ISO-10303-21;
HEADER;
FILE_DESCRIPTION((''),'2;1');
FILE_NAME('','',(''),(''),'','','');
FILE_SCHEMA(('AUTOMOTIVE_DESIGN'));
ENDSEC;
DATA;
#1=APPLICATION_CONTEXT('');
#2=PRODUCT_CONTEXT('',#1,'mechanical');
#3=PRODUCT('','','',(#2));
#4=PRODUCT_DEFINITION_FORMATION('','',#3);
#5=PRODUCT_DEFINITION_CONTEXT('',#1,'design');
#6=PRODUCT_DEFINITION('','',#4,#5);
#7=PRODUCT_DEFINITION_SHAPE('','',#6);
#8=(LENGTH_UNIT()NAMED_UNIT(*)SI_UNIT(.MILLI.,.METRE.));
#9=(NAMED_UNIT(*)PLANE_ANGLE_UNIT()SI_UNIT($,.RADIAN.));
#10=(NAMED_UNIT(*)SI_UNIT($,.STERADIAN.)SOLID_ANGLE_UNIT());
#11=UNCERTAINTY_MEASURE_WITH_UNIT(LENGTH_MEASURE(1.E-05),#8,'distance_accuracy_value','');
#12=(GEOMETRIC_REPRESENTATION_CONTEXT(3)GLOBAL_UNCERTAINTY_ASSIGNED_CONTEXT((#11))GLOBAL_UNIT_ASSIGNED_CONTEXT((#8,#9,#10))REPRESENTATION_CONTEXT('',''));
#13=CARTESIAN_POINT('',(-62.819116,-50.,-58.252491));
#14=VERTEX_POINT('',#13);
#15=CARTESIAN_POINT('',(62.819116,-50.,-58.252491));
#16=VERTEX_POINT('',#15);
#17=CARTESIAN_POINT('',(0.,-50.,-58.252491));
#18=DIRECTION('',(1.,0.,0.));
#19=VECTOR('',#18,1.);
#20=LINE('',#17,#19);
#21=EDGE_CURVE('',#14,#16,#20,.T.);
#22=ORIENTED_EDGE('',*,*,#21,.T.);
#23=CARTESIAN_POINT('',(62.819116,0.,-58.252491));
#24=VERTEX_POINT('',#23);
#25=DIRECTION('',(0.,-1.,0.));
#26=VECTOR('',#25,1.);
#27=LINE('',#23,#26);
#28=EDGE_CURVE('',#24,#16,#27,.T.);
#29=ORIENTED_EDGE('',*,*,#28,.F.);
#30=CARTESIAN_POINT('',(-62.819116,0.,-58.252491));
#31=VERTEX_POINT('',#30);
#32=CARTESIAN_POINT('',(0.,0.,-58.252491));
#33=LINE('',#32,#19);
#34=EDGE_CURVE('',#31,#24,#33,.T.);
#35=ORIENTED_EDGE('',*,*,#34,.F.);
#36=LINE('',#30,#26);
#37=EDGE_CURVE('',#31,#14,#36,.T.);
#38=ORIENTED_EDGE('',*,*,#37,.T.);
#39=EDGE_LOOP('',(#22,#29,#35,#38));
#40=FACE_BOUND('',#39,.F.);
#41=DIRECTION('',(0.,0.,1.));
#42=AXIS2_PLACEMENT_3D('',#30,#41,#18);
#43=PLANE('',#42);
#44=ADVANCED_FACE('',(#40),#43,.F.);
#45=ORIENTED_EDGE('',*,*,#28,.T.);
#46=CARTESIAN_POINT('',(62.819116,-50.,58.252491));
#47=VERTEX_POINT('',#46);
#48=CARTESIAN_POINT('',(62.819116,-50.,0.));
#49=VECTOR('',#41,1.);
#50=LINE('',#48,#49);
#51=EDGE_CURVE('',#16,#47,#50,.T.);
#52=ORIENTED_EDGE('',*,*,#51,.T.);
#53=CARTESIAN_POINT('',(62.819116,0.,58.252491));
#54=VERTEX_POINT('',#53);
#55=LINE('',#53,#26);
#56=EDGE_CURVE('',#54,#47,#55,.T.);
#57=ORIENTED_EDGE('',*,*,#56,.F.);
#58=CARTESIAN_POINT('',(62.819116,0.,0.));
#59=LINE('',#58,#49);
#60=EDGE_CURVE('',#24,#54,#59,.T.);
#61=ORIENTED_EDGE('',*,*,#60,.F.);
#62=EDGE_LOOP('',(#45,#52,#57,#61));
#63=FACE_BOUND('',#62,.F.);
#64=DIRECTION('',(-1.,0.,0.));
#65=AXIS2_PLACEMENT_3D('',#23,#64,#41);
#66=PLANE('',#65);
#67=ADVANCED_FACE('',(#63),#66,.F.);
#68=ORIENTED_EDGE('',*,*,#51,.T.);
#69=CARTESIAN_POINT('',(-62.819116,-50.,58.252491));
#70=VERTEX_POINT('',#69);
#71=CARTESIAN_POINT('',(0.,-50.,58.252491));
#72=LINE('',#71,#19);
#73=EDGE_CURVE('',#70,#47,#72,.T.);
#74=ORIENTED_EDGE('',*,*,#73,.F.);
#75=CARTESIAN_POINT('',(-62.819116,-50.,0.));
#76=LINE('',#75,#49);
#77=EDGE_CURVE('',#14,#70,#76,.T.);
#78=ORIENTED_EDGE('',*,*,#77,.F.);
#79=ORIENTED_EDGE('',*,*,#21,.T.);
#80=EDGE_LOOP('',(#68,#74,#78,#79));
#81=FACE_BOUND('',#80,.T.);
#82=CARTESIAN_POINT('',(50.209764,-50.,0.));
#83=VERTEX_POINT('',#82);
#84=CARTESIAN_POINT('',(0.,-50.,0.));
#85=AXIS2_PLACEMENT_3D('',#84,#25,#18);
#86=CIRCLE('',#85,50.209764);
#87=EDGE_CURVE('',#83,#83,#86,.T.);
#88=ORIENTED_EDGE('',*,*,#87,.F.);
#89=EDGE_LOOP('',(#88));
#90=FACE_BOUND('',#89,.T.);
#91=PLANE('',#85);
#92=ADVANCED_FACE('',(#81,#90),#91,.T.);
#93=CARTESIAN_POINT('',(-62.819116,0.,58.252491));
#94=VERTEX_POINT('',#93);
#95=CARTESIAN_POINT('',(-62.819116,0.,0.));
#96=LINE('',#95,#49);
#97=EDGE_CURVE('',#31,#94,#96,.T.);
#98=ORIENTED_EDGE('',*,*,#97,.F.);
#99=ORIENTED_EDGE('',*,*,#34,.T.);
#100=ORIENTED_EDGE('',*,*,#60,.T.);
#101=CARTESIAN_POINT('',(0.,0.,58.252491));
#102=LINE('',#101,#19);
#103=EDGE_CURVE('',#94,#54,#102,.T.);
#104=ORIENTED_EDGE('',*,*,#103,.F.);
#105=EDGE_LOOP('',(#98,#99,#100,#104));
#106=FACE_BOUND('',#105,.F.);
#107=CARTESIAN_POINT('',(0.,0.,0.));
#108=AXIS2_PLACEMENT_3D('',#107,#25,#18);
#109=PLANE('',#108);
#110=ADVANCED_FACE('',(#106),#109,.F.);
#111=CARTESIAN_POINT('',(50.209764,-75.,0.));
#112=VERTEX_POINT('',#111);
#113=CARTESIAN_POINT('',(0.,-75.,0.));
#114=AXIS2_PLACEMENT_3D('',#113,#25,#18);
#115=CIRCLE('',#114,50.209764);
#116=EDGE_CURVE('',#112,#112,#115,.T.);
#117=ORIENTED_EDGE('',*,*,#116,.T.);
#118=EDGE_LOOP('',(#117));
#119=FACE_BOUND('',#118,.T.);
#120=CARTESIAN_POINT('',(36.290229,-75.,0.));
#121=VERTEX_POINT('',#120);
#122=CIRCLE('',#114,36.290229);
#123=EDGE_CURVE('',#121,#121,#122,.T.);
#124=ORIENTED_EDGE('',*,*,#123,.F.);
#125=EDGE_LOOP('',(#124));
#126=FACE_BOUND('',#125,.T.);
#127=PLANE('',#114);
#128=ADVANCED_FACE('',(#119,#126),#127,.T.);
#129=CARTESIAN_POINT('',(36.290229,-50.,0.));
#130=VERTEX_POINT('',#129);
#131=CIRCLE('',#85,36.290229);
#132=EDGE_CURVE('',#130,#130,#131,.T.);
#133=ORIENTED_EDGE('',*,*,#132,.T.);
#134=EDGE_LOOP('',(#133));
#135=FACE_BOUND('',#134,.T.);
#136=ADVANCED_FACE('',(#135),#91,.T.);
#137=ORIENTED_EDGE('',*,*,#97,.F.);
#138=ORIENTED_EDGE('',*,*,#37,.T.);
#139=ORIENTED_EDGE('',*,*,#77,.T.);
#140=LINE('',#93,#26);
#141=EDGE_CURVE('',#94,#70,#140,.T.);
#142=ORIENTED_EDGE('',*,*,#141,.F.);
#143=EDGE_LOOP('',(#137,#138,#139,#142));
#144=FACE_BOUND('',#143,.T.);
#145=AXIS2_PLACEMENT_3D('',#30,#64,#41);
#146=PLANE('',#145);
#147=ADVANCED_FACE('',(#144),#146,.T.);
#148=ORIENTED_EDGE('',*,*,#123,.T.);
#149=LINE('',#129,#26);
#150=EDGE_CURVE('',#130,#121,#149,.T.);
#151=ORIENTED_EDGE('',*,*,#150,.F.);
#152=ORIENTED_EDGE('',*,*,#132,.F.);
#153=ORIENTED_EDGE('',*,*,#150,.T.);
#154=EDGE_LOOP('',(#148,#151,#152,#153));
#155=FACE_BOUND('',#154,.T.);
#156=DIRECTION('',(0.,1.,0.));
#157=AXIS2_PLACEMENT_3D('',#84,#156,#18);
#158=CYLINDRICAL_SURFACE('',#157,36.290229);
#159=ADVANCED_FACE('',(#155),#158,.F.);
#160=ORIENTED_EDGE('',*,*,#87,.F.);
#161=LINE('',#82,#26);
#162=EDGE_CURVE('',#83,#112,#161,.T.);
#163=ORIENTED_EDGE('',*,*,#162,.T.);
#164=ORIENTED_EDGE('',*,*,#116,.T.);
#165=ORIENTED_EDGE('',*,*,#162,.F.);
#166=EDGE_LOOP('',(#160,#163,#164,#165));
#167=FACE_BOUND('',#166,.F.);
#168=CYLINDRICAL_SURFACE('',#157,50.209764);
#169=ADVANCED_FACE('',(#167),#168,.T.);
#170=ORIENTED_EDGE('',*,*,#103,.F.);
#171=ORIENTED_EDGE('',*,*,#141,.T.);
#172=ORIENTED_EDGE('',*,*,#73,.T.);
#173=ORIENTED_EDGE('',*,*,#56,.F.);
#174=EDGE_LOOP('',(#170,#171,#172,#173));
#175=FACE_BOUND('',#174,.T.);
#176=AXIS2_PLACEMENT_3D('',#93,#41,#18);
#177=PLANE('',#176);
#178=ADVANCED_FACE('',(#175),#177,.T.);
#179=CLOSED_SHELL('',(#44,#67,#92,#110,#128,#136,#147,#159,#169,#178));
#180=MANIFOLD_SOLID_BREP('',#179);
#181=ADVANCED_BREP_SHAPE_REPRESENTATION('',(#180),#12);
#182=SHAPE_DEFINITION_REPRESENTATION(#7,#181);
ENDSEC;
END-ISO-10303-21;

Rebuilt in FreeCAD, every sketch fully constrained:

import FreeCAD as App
import Part
import Sketcher
Q = App.Units.Quantity

doc = App.newDocument("Part")
body = doc.addObject("PartDesign::Body", "Body")

sketch1 = body.newObject("Sketcher::SketchObject", "Sketch")
sketch1.AttachmentSupport = (doc.getObject("XZ_Plane"), [""])
sketch1.MapMode = "FlatFace"
sketch1.addGeometry(Part.LineSegment(App.Vector(-63, 58, 0), App.Vector(-63, -58, 0)), False)
sketch1.addGeometry(Part.LineSegment(App.Vector(-63, -58, 0), App.Vector(63, -58, 0)), False)
sketch1.addGeometry(Part.LineSegment(App.Vector(63, -58, 0), App.Vector(63, 58, 0)), False)
sketch1.addGeometry(Part.LineSegment(App.Vector(63, 58, 0), App.Vector(-63, 58, 0)), False)
sketch1.addConstraint(Sketcher.Constraint("Coincident", 0, 2, 1, 1))
sketch1.addConstraint(Sketcher.Constraint("Coincident", 1, 2, 2, 1))
sketch1.addConstraint(Sketcher.Constraint("Coincident", 2, 2, 3, 1))
sketch1.addConstraint(Sketcher.Constraint("Coincident", 3, 2, 0, 1))
sketch1.addConstraint(Sketcher.Constraint("Vertical", 0))
sketch1.addConstraint(Sketcher.Constraint("Horizontal", 1))
sketch1.addConstraint(Sketcher.Constraint("Vertical", 2))
sketch1.addConstraint(Sketcher.Constraint("Horizontal", 3))
sketch1.addConstraint(Sketcher.Constraint("Symmetric", 0, 2, 2, 2, -1, 1))
sketch1.addConstraint(Sketcher.Constraint("DistanceY", 0, 2, 0, 1, Q("116.504982 mm")))
sketch1.addConstraint(Sketcher.Constraint("DistanceX", 1, 1, 1, 2, Q("125.638232 mm")))
pad1 = body.newObject("PartDesign::Pad", "Pad")
pad1.Profile = sketch1
pad1.Length = 50

sketch2 = body.newObject("Sketcher::SketchObject", "Sketch001")
sketch2.AttachmentSupport = (doc.getObject("XZ_Plane"), [""])
sketch2.MapMode = "FlatFace"
sketch2.AttachmentOffset = App.Placement(App.Vector(0, 0, 50), App.Rotation())
sketch2.addGeometry(Part.Circle(App.Vector(0, 0, 0), App.Vector(0, 0, 1), 50), False)
sketch2.addGeometry(Part.Circle(App.Vector(0, 0, 0), App.Vector(0, 0, 1), 36), False)
sketch2.addConstraint(Sketcher.Constraint("Coincident", 0, 3, -1, 1))
sketch2.addConstraint(Sketcher.Constraint("Coincident", 1, 3, -1, 1))
sketch2.addConstraint(Sketcher.Constraint("Diameter", 0, Q("100.419528 mm")))
sketch2.addConstraint(Sketcher.Constraint("Diameter", 1, Q("72.580458 mm")))
pad2 = body.newObject("PartDesign::Pad", "Pad001")
pad2.Profile = sketch2
pad2.Length = 25

doc.recompute()
